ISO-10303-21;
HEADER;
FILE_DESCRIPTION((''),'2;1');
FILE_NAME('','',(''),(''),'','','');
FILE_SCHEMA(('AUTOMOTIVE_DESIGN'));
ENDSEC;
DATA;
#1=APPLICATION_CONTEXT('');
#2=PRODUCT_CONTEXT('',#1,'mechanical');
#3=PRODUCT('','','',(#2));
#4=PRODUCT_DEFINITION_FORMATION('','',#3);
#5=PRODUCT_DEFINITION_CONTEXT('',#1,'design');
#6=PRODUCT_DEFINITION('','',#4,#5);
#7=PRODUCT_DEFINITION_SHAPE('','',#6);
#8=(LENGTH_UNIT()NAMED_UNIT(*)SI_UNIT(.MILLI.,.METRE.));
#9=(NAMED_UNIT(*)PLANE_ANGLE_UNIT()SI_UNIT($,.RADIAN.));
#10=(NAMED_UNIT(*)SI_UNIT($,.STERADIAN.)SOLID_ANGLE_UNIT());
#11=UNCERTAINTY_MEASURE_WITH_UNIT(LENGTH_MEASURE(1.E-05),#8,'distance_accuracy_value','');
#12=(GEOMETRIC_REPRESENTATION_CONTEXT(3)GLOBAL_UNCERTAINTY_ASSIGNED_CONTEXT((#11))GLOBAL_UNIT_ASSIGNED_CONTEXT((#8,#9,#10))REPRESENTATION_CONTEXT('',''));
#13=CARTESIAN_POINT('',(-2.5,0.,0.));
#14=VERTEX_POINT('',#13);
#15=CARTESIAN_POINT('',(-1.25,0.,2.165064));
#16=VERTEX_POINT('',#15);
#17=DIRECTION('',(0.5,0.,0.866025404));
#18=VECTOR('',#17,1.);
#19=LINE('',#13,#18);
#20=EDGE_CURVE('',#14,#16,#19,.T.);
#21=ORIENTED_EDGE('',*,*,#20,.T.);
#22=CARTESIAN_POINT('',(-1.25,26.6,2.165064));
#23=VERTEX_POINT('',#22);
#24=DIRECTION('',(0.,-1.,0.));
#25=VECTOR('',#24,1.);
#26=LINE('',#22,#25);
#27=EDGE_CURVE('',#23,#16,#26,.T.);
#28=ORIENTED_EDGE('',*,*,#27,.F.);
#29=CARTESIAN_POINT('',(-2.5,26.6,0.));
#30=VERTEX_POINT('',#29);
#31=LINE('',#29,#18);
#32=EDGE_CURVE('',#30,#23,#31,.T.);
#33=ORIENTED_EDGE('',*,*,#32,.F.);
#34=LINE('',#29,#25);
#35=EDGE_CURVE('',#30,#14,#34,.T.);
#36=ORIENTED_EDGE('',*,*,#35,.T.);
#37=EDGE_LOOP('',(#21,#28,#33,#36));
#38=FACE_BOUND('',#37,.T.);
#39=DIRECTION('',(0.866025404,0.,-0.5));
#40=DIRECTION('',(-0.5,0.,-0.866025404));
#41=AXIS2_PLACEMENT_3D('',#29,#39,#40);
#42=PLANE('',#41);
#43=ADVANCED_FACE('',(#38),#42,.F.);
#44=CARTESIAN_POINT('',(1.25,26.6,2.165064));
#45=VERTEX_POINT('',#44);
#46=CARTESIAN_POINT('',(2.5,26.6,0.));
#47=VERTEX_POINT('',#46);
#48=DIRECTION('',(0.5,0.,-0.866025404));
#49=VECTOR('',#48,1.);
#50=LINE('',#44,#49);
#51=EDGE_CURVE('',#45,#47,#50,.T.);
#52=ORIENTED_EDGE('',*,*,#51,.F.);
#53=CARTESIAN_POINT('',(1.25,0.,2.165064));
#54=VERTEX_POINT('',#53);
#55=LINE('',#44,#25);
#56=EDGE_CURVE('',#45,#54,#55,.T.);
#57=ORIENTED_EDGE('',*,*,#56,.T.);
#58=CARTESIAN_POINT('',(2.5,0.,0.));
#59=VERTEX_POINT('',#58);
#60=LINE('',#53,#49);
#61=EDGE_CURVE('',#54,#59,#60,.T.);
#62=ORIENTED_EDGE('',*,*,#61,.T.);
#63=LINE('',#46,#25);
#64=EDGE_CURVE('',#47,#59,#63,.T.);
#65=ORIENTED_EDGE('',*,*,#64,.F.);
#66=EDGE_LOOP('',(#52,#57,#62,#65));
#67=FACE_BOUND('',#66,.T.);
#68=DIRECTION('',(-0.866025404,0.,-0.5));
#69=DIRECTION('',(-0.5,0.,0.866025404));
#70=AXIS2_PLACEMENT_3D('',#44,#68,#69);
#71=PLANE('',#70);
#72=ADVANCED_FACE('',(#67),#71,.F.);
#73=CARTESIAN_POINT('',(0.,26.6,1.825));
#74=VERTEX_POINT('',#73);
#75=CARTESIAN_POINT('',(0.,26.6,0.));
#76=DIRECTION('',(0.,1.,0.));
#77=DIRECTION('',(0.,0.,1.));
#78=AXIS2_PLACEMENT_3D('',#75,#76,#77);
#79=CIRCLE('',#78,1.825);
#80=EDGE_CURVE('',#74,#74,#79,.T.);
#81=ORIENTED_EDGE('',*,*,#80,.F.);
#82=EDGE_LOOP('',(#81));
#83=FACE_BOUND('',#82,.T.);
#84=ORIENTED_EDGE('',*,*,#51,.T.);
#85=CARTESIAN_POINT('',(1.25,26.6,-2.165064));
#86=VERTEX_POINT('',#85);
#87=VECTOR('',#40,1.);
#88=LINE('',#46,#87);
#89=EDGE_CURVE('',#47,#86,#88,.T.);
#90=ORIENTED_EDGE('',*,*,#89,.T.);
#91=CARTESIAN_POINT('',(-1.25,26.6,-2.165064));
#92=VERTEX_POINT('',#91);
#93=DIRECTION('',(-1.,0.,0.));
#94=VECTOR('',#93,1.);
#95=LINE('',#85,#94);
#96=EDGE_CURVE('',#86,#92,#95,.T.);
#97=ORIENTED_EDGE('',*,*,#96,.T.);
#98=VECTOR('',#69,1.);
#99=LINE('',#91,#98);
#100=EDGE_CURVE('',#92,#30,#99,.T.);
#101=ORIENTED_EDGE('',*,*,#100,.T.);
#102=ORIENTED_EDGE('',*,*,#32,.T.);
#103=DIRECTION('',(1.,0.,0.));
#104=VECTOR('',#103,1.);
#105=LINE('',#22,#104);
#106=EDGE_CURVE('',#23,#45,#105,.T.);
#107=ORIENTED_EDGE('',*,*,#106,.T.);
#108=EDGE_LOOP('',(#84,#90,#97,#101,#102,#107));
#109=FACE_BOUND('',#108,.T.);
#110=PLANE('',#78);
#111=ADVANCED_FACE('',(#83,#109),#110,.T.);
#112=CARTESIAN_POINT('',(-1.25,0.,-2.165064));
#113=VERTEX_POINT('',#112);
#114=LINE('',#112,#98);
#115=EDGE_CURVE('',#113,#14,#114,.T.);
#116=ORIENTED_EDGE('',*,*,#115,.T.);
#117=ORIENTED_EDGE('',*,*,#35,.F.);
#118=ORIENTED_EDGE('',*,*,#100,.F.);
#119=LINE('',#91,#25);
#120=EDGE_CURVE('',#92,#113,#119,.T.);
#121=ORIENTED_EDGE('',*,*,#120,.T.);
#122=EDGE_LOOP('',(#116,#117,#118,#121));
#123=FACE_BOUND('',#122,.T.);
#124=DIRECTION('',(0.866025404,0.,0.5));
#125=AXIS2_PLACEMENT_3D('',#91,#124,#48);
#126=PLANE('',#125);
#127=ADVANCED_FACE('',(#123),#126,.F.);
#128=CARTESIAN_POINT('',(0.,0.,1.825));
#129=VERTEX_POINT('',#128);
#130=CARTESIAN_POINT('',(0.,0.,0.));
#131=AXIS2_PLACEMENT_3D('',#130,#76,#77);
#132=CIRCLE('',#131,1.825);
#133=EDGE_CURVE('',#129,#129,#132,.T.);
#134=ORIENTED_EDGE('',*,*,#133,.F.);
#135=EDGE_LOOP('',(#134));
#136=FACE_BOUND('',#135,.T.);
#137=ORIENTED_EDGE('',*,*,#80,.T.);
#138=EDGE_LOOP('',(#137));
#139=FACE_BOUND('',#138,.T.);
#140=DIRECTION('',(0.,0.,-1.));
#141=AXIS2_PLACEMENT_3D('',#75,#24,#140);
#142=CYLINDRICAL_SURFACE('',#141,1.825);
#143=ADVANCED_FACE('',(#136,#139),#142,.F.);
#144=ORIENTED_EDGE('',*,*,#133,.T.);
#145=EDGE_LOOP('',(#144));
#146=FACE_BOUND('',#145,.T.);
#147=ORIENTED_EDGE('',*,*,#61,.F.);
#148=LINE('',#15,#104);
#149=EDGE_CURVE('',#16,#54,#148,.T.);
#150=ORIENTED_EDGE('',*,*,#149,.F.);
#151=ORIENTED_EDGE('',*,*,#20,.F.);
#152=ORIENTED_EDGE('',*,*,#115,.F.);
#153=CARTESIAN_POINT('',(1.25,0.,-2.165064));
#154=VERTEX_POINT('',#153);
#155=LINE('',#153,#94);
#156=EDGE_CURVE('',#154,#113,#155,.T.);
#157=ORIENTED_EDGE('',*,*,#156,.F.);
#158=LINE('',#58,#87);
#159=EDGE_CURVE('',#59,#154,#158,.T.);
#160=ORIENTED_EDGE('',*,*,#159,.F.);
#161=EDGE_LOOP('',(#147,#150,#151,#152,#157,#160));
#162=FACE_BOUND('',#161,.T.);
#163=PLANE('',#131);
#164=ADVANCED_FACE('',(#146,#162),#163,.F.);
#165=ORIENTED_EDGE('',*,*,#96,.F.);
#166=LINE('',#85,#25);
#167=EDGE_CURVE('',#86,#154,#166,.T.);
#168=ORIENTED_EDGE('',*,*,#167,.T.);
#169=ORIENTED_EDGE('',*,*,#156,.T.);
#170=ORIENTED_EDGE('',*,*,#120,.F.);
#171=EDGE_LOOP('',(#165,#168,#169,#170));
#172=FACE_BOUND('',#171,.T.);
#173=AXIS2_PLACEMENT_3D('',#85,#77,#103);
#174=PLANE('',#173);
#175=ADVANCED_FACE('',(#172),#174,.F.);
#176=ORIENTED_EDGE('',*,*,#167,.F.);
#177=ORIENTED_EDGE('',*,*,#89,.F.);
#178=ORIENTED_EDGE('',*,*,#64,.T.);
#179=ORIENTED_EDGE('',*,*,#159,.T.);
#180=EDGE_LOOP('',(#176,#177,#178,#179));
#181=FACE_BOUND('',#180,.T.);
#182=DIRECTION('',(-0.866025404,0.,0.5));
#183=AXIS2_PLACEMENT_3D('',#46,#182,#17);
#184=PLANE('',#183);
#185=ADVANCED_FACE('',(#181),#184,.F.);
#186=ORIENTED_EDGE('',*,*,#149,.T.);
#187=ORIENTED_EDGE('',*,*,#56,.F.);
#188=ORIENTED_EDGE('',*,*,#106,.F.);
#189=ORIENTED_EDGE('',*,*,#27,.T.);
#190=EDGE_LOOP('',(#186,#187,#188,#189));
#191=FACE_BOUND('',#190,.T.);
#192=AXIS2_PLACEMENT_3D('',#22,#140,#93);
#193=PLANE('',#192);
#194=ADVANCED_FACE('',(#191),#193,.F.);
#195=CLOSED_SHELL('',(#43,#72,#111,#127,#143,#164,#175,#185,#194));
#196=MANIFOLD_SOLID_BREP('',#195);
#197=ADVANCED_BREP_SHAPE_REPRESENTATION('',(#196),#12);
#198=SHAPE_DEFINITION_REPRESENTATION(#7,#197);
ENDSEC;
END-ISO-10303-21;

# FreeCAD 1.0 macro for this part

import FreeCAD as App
import Part
import Sketcher
Q = App.Units.Quantity


def add_polygon(sketch, points):
    """Adds a closed chain of lines whose ends are joined by coincident constraints."""
    first, n = sketch.GeometryCount, len(points)
    for a, b in zip(points, points[1:] + points[:1]):
        sketch.addGeometry(Part.LineSegment(App.Vector(*a, 0), App.Vector(*b, 0)), False)
    for i in range(n):
        sketch.addConstraint(Sketcher.Constraint("Coincident", first + i, 2, first + (i + 1) % n, 1))

doc = App.newDocument("Part")
body = doc.addObject("PartDesign::Body", "Body")

# Sketch on XZ plane
sketch1 = doc.addObject("Sketcher::SketchObject", "Sketch")
body.addObject(sketch1)
sketch1.AttachmentSupport = (doc.XZ_Plane, [""])
sketch1.MapMode = "FlatFace"
add_polygon(sketch1, [(2.5, 0), (1.2, -2.2), (-1.2, -2.2), (-2.5, 0), (-1.2, 2.2), (1.2, 2.2)])  # lines 0-5
sketch1.addGeometry(Part.Circle(App.Vector(0, 0, 0), App.Vector(0, 0, 1), 1.8), False)  # 6
sketch1.addConstraint(Sketcher.Constraint("Horizontal", 1))
sketch1.addConstraint(Sketcher.Constraint("Horizontal", 4))
sketch1.addConstraint(Sketcher.Constraint("Coincident", 6, 3, -1, 1))
sketch1.addConstraint(Sketcher.Constraint("Symmetric", 0, 2, 3, 2, -1, 1))
sketch1.addConstraint(Sketcher.Constraint("Symmetric", 2, 2, 5, 2, -1, 1))
sketch1.addConstraint(Sketcher.Constraint("PointOnObject", 2, 2, -1))
sketch1.addConstraint(Sketcher.Constraint("Parallel", 2, 5))
sketch1.addConstraint(Sketcher.Constraint("Vertical", 1, 2, 3, 2))
sketch1.addConstraint(Sketcher.Constraint("Diameter", 6, Q("3.65 mm")))
sketch1.addConstraint(Sketcher.Constraint("Angle", 0, Q("-120 deg")))
sketch1.addConstraint(Sketcher.Constraint("DistanceX", 1, 2, 1, 1, Q("2.5 mm")))
sketch1.addConstraint(Sketcher.Constraint("Distance", 0, Q("2.5 mm")))
pad1 = doc.addObject("PartDesign::Pad", "Pad")
body.addObject(pad1)
pad1.Profile = sketch1
pad1.Length = 26.6
pad1.Reversed = True

doc.recompute()
